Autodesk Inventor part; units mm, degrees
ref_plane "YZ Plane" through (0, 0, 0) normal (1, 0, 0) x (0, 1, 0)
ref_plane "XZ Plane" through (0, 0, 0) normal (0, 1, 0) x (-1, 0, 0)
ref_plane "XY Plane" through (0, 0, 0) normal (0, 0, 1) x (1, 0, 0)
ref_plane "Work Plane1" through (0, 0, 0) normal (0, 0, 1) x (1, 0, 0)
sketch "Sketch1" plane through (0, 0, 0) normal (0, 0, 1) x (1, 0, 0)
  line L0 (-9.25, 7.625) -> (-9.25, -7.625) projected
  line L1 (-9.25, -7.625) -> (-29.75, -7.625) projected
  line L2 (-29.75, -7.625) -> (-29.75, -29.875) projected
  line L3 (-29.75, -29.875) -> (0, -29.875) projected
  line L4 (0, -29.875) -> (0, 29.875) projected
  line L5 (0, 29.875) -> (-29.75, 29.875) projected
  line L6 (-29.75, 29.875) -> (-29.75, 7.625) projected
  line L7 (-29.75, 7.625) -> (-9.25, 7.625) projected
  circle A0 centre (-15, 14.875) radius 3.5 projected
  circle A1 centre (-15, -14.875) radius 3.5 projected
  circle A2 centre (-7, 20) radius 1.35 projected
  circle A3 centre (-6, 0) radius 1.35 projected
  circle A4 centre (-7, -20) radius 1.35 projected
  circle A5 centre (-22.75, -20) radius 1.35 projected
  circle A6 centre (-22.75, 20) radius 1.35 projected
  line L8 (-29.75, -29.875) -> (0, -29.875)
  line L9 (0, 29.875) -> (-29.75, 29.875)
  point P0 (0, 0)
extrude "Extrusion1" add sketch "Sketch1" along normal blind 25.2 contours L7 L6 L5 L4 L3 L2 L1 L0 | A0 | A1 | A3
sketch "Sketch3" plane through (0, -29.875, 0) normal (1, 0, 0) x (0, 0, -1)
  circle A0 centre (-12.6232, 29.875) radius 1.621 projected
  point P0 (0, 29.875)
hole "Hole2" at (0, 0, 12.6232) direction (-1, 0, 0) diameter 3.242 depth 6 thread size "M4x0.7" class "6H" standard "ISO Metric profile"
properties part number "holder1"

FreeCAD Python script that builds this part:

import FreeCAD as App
import Part
import Sketcher


def add_polygon(sketch, points):
    """Adds a closed chain of lines whose ends are joined by coincident constraints."""
    first, n = sketch.GeometryCount, len(points)
    for a, b in zip(points, points[1:] + points[:1]):
        sketch.addGeometry(Part.LineSegment(App.Vector(*a, 0), App.Vector(*b, 0)), False)
    for i in range(n):
        sketch.addConstraint(Sketcher.Constraint("Coincident", first + i, 2, first + (i + 1) % n, 1))

doc = App.newDocument("Part")
body = doc.addObject("PartDesign::Body", "Body")

sketch1 = body.newObject("Sketcher::SketchObject", "Sketch")
sketch1.AttachmentSupport = (doc.getObject("XY_Plane"), [""])
sketch1.MapMode = "FlatFace"
add_polygon(sketch1, [(-29.8, 7.6), (-9.2, 7.6), (-9.2, -7.6), (-29.8, -7.6), (-29.8, -29.9), (0, -29.9), (0, 29.9), (-29.8, 29.9)])
sketch1.addGeometry(Part.Circle(App.Vector(-22.8, -20, 0), App.Vector(0, 0, 1), 1.4), False)
sketch1.addGeometry(Part.Circle(App.Vector(-7, -20, 0), App.Vector(0, 0, 1), 1.4), False)
sketch1.addGeometry(Part.Circle(App.Vector(-22.8, 20, 0), App.Vector(0, 0, 1), 1.4), False)
sketch1.addGeometry(Part.Circle(App.Vector(-7, 20, 0), App.Vector(0, 0, 1), 1.4), False)
sketch1.addConstraint([
    Sketcher.Constraint("Horizontal", 0),
    Sketcher.Constraint("Vertical", 1),
    Sketcher.Constraint("Horizontal", 2),
    Sketcher.Constraint("Vertical", 3),
    Sketcher.Constraint("Horizontal", 4),
    Sketcher.Constraint("Vertical", 5),
    Sketcher.Constraint("Horizontal", 6),
    Sketcher.Constraint("Vertical", 7),
    Sketcher.Constraint("Equal", 8, 9),
    Sketcher.Constraint("Equal", 9, 10),
    Sketcher.Constraint("Equal", 10, 11),
    Sketcher.Constraint("Symmetric", 4, 2, 5, 2, -1, 1),
    Sketcher.Constraint("Symmetric", 8, 3, 10, 3, -1),
    Sketcher.Constraint("Symmetric", 9, 3, 11, 3, -1),
    Sketcher.Constraint("Symmetric", 2, 2, 7, 2, -1),
    Sketcher.Constraint("Horizontal", 8, 3, 9, 3),
    Sketcher.Constraint("Diameter", 8, 2.7),
    Sketcher.Constraint("DistanceX", 0, 1, 0, 2, 20.5),
    Sketcher.Constraint("DistanceY", 8, 3, -1, 1, 20.0),
    Sketcher.Constraint("DistanceX", 9, 3, -1, 1, 7.0),
    Sketcher.Constraint("DistanceX", 2, 2, 8, 3, 7.0),
    Sketcher.Constraint("DistanceX", 4, 1, 4, 2, 29.75),
    Sketcher.Constraint("DistanceY", 1, 2, 1, 1, 15.25),
    Sketcher.Constraint("DistanceY", 3, 2, 3, 1, 22.25),
])
pad1 = body.newObject("PartDesign::Pad", "Pad")
pad1.Profile = sketch1
pad1.Length = 25.2

sketch2 = body.newObject("Sketcher::SketchObject", "Sketch001")
sketch2.AttachmentSupport = (doc.getObject("YZ_Plane"), [""])
sketch2.MapMode = "FlatFace"
sketch2.addGeometry(Part.Circle(App.Vector(0, 12.6, 0), App.Vector(0, 0, 1), 1.6), False)
sketch2.addConstraint([
    Sketcher.Constraint("PointOnObject", 0, 3, -2),
    Sketcher.Constraint("Diameter", 0, 3.242),
    Sketcher.Constraint("DistanceY", -1, 1, 0, 3, 12.6232),
])
doc.recompute()
hole = body.newObject("PartDesign::Hole", "Hole")
hole.Profile = sketch2
hole.ThreadType = "None"
hole.Diameter = 3.242
hole.DepthType = "Dimension"
hole.Depth = 6
hole.DrillPoint = "Flat"

doc.recompute()
